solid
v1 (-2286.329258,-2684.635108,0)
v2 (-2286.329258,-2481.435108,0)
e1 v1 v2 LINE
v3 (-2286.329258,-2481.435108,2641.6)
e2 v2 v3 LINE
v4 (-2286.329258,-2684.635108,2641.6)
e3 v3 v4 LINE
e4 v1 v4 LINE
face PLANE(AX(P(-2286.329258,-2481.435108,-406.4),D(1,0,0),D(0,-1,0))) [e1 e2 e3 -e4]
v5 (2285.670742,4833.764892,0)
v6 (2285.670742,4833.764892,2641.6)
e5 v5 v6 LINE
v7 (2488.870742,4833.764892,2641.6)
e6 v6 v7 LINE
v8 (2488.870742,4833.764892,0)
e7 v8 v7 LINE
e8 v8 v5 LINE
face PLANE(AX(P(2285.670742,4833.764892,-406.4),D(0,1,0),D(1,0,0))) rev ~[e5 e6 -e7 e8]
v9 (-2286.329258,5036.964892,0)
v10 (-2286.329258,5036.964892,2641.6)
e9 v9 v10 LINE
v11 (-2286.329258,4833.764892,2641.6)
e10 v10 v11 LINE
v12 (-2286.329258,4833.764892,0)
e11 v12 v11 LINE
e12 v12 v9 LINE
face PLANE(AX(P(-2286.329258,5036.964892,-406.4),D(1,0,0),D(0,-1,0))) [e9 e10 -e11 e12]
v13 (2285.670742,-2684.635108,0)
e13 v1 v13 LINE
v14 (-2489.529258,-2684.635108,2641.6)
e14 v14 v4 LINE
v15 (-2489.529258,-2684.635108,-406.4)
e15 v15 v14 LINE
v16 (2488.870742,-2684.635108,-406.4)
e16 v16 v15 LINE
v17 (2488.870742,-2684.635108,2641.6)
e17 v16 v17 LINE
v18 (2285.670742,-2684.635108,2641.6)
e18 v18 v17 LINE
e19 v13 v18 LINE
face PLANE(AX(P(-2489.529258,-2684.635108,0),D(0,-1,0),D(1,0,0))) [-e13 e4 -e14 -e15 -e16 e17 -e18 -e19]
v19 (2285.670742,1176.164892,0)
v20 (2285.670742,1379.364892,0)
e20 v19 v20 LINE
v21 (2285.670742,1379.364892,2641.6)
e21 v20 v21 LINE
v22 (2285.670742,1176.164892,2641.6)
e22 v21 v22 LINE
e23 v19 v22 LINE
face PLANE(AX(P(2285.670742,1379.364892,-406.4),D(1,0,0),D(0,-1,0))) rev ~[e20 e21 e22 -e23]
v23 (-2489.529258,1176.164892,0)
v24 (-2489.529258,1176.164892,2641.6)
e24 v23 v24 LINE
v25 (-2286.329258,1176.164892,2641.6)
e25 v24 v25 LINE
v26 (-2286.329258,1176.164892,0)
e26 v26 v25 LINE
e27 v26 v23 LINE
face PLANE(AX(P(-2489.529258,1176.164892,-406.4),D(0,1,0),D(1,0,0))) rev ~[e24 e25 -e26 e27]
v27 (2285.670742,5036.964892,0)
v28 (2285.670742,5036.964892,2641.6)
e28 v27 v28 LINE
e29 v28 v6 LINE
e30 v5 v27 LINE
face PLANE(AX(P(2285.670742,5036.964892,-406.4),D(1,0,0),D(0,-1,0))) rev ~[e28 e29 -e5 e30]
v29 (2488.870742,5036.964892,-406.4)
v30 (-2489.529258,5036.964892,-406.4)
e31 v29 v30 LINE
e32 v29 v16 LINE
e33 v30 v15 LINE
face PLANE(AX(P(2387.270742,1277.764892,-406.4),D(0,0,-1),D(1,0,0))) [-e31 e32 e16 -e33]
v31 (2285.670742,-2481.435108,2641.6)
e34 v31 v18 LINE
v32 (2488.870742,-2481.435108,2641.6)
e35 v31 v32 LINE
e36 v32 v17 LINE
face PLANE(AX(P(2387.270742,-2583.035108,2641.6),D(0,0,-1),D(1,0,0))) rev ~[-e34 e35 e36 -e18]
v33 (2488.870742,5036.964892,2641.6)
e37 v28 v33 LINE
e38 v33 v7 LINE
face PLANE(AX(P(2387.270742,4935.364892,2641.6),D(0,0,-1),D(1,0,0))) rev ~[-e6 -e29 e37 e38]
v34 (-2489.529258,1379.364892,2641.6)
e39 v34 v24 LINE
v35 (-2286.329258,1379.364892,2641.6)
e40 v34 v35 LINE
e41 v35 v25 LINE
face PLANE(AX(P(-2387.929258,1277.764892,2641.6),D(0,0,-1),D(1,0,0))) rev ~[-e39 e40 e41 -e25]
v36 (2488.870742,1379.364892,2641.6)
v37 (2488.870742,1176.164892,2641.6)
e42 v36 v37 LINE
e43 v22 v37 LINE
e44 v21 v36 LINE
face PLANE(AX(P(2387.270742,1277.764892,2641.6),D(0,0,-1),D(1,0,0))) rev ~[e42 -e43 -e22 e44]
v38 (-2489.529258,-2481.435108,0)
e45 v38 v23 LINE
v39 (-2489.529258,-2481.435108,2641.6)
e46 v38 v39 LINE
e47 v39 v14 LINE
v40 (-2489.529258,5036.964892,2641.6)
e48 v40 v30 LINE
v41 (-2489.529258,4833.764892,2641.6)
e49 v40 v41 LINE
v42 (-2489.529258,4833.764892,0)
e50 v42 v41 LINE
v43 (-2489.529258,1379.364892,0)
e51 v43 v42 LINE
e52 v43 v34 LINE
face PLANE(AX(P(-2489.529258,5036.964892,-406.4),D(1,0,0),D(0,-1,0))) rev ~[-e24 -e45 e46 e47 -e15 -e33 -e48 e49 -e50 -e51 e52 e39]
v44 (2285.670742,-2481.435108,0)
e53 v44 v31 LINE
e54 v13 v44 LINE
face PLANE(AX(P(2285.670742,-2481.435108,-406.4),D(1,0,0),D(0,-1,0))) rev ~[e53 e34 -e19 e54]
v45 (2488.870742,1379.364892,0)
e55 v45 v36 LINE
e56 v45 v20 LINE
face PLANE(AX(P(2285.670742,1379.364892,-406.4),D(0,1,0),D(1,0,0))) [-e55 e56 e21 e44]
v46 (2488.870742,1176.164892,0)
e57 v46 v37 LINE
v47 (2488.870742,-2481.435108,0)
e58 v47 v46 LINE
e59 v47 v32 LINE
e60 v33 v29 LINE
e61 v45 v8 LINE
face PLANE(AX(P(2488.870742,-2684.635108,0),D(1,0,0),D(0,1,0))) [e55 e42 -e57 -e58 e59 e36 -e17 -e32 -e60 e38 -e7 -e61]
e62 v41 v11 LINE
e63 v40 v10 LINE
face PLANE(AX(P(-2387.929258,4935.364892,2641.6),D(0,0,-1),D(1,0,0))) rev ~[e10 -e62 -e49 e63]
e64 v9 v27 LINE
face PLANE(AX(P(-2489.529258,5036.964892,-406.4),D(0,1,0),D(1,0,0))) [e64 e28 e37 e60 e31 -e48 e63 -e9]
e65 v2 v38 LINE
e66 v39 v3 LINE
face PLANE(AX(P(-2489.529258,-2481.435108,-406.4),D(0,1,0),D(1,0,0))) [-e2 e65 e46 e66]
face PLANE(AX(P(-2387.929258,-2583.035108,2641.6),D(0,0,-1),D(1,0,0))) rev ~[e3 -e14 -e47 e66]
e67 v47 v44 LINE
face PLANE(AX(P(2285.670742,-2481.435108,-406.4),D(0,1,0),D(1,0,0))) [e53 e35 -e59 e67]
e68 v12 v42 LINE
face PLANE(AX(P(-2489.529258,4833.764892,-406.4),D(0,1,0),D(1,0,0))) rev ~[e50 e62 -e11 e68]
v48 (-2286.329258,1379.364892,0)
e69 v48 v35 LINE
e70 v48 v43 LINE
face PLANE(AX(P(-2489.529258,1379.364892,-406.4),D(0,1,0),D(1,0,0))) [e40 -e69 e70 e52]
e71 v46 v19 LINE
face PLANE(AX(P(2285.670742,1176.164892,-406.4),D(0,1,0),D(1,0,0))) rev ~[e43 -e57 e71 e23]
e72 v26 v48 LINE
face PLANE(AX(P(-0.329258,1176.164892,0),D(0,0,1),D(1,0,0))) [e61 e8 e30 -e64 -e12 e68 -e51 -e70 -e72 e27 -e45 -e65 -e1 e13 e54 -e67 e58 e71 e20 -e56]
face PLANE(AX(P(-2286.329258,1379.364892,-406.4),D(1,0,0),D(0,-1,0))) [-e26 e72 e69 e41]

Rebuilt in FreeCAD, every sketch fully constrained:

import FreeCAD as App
import Part
import Sketcher
Q = App.Units.Quantity

doc = App.newDocument("Part")
body = doc.addObject("PartDesign::Body", "Body")

# Sketch on XY plane
sketch1 = body.newObject("Sketcher::SketchObject", "Sketch")
sketch1.AttachmentSupport = (doc.getObject("XY_Plane"), [""])
sketch1.MapMode = "FlatFace"
sketch1.addGeometry([
    Part.LineSegment(App.Vector(-2489.529258, 5036.964892, 0), App.Vector(-2489.529258, -2684.635108, 0)),
    Part.LineSegment(App.Vector(-2489.529258, -2684.635108, 0), App.Vector(2488.870742, -2684.635108, 0)),
    Part.LineSegment(App.Vector(2488.870742, -2684.635108, 0), App.Vector(2488.870742, 5036.964892, 0)),
    Part.LineSegment(App.Vector(2488.870742, 5036.964892, 0), App.Vector(-2489.529258, 5036.964892, 0)),
], False)
sketch1.addConstraint([
    Sketcher.Constraint("Coincident", 0, 2, 1, 1),
    Sketcher.Constraint("Coincident", 1, 2, 2, 1),
    Sketcher.Constraint("Coincident", 2, 2, 3, 1),
    Sketcher.Constraint("Coincident", 3, 2, 0, 1),
    Sketcher.Constraint("Vertical", 0),
    Sketcher.Constraint("Horizontal", 1),
    Sketcher.Constraint("Vertical", 2),
    Sketcher.Constraint("Horizontal", 3),
    Sketcher.Constraint("DistanceX", 1, 1, 1, 2, Q("196 in")),
    Sketcher.Constraint("DistanceY", 0, 2, 0, 1, Q("304 in")),
    Sketcher.Constraint("DistanceY", 0, 2, -1, 1, 2684.635108),
    Sketcher.Constraint("DistanceX", 0, 2, -1, 1, 2489.529258),
])
pad1 = body.newObject("PartDesign::Pad", "Pad")
pad1.Profile = sketch1
pad1.Length = Q("16 in")
pad1.Reversed = True

# Sketch on XY plane
sketch2 = body.newObject("Sketcher::SketchObject", "Sketch001")
sketch2.AttachmentSupport = (doc.getObject("XY_Plane"), [""])
sketch2.MapMode = "FlatFace"
sketch2.AttachmentOffset = App.Placement(App.Vector(0, 0, -16 * 25.4), App.Rotation())
sketch2.addGeometry([
    Part.LineSegment(App.Vector(-2489.529258, -2684.635108, 0), App.Vector(-2489.529258, -2481.435108, 0)),
    Part.LineSegment(App.Vector(-2489.529258, -2481.435108, 0), App.Vector(-2286.329258, -2481.435108, 0)),
    Part.LineSegment(App.Vector(-2286.329258, -2481.435108, 0), App.Vector(-2286.329258, -2684.635108, 0)),
    Part.LineSegment(App.Vector(-2286.329258, -2684.635108, 0), App.Vector(-2489.529258, -2684.635108, 0)),
], False)
sketch2.addConstraint([
    Sketcher.Constraint("Coincident", 0, 2, 1, 1),
    Sketcher.Constraint("Coincident", 1, 2, 2, 1),
    Sketcher.Constraint("Coincident", 2, 2, 3, 1),
    Sketcher.Constraint("Coincident", 3, 2, 0, 1),
    Sketcher.Constraint("Vertical", 0),
    Sketcher.Constraint("Horizontal", 1),
    Sketcher.Constraint("Vertical", 2),
    Sketcher.Constraint("Horizontal", 3),
    Sketcher.Constraint("Equal", 3, 0),
    Sketcher.Constraint("DistanceX", 1, 1, 1, 2, Q("8 in")),
    Sketcher.Constraint("DistanceY", 0, 2, -1, 1, 2481.435108),
    Sketcher.Constraint("DistanceX", 0, 2, -1, 1, 2489.529258),
])
pad2 = body.newObject("PartDesign::Pad", "Pad001")
pad2.Profile = sketch2
pad2.Length = Q("120 in")

# Sketch on XY plane
sketch3 = body.newObject("Sketcher::SketchObject", "Sketch002")
sketch3.AttachmentSupport = (doc.getObject("XY_Plane"), [""])
sketch3.MapMode = "FlatFace"
sketch3.AttachmentOffset = App.Placement(App.Vector(0, 0, -16 * 25.4), App.Rotation())
sketch3.addGeometry([
    Part.LineSegment(App.Vector(2285.670742, -2684.635108, 0), App.Vector(2285.670742, -2481.435108, 0)),
    Part.LineSegment(App.Vector(2285.670742, -2481.435108, 0), App.Vector(2488.870742, -2481.435108, 0)),
    Part.LineSegment(App.Vector(2488.870742, -2481.435108, 0), App.Vector(2488.870742, -2684.635108, 0)),
    Part.LineSegment(App.Vector(2488.870742, -2684.635108, 0), App.Vector(2285.670742, -2684.635108, 0)),
], False)
sketch3.addConstraint([
    Sketcher.Constraint("Coincident", 0, 2, 1, 1),
    Sketcher.Constraint("Coincident", 1, 2, 2, 1),
    Sketcher.Constraint("Coincident", 2, 2, 3, 1),
    Sketcher.Constraint("Coincident", 3, 2, 0, 1),
    Sketcher.Constraint("Vertical", 0),
    Sketcher.Constraint("Horizontal", 1),
    Sketcher.Constraint("Vertical", 2),
    Sketcher.Constraint("Horizontal", 3),
    Sketcher.Constraint("Equal", 3, 0),
    Sketcher.Constraint("DistanceX", 1, 1, 1, 2, Q("8 in")),
    Sketcher.Constraint("DistanceY", 0, 2, -1, 1, 2481.435108),
    Sketcher.Constraint("DistanceX", -1, 1, 0, 2, 2285.670742),
])
pad3 = body.newObject("PartDesign::Pad", "Pad002")
pad3.Profile = sketch3
pad3.Length = Q("120 in")

# Sketch on XY plane
sketch4 = body.newObject("Sketcher::SketchObject", "Sketch003")
sketch4.AttachmentSupport = (doc.getObject("XY_Plane"), [""])
sketch4.MapMode = "FlatFace"
sketch4.AttachmentOffset = App.Placement(App.Vector(0, 0, -16 * 25.4), App.Rotation())
sketch4.addGeometry([
    Part.LineSegment(App.Vector(2285.670742, 4833.764892, 0), App.Vector(2285.670742, 5036.964892, 0)),
    Part.LineSegment(App.Vector(2285.670742, 5036.964892, 0), App.Vector(2488.870742, 5036.964892, 0)),
    Part.LineSegment(App.Vector(2488.870742, 5036.964892, 0), App.Vector(2488.870742, 4833.764892, 0)),
    Part.LineSegment(App.Vector(2488.870742, 4833.764892, 0), App.Vector(2285.670742, 4833.764892, 0)),
], False)
sketch4.addConstraint([
    Sketcher.Constraint("Coincident", 0, 2, 1, 1),
    Sketcher.Constraint("Coincident", 1, 2, 2, 1),
    Sketcher.Constraint("Coincident", 2, 2, 3, 1),
    Sketcher.Constraint("Coincident", 3, 2, 0, 1),
    Sketcher.Constraint("Vertical", 0),
    Sketcher.Constraint("Horizontal", 1),
    Sketcher.Constraint("Vertical", 2),
    Sketcher.Constraint("Horizontal", 3),
    Sketcher.Constraint("Equal", 3, 0),
    Sketcher.Constraint("DistanceX", 1, 1, 1, 2, Q("8 in")),
    Sketcher.Constraint("DistanceY", -1, 1, 0, 2, 5036.964892),
    Sketcher.Constraint("DistanceX", -1, 1, 0, 2, 2285.670742),
])
pad4 = body.newObject("PartDesign::Pad", "Pad003")
pad4.Profile = sketch4
pad4.Length = Q("120 in")

# Sketch on XY plane
sketch5 = body.newObject("Sketcher::SketchObject", "Sketch004")
sketch5.AttachmentSupport = (doc.getObject("XY_Plane"), [""])
sketch5.MapMode = "FlatFace"
sketch5.AttachmentOffset = App.Placement(App.Vector(0, 0, -16 * 25.4), App.Rotation())
sketch5.addGeometry([
    Part.LineSegment(App.Vector(-2489.529258, 4833.764892, 0), App.Vector(-2489.529258, 5036.964892, 0)),
    Part.LineSegment(App.Vector(-2489.529258, 5036.964892, 0), App.Vector(-2286.329258, 5036.964892, 0)),
    Part.LineSegment(App.Vector(-2286.329258, 5036.964892, 0), App.Vector(-2286.329258, 4833.764892, 0)),
    Part.LineSegment(App.Vector(-2286.329258, 4833.764892, 0), App.Vector(-2489.529258, 4833.764892, 0)),
], False)
sketch5.addConstraint([
    Sketcher.Constraint("Coincident", 0, 2, 1, 1),
    Sketcher.Constraint("Coincident", 1, 2, 2, 1),
    Sketcher.Constraint("Coincident", 2, 2, 3, 1),
    Sketcher.Constraint("Coincident", 3, 2, 0, 1),
    Sketcher.Constraint("Vertical", 0),
    Sketcher.Constraint("Horizontal", 1),
    Sketcher.Constraint("Vertical", 2),
    Sketcher.Constraint("Horizontal", 3),
    Sketcher.Constraint("Equal", 3, 0),
    Sketcher.Constraint("DistanceX", 1, 1, 1, 2, Q("8 in")),
    Sketcher.Constraint("DistanceY", -1, 1, 0, 2, 5036.964892),
    Sketcher.Constraint("DistanceX", 0, 2, -1, 1, 2489.529258),
])
pad5 = body.newObject("PartDesign::Pad", "Pad004")
pad5.Profile = sketch5
pad5.Length = Q("120 in")

# Sketch on XY plane
sketch6 = body.newObject("Sketcher::SketchObject", "Sketch005")
sketch6.AttachmentSupport = (doc.getObject("XY_Plane"), [""])
sketch6.MapMode = "FlatFace"
sketch6.AttachmentOffset = App.Placement(App.Vector(0, 0, -16 * 25.4), App.Rotation())
sketch6.addGeometry([
    Part.LineSegment(App.Vector(-2489.529258, 1176.164892, 0), App.Vector(-2489.529258, 1379.364892, 0)),
    Part.LineSegment(App.Vector(-2489.529258, 1379.364892, 0), App.Vector(-2286.329258, 1379.364892, 0)),
    Part.LineSegment(App.Vector(-2286.329258, 1379.364892, 0), App.Vector(-2286.329258, 1176.164892, 0)),
    Part.LineSegment(App.Vector(-2286.329258, 1176.164892, 0), App.Vector(-2489.529258, 1176.164892, 0)),
], False)
sketch6.addConstraint([
    Sketcher.Constraint("Coincident", 0, 2, 1, 1),
    Sketcher.Constraint("Coincident", 1, 2, 2, 1),
    Sketcher.Constraint("Coincident", 2, 2, 3, 1),
    Sketcher.Constraint("Coincident", 3, 2, 0, 1),
    Sketcher.Constraint("Vertical", 0),
    Sketcher.Constraint("Horizontal", 1),
    Sketcher.Constraint("Vertical", 2),
    Sketcher.Constraint("Horizontal", 3),
    Sketcher.Constraint("Equal", 3, 0),
    Sketcher.Constraint("DistanceX", 1, 1, 1, 2, Q("8 in")),
    Sketcher.Constraint("DistanceY", -1, 1, 0, 2, 1379.364892),
    Sketcher.Constraint("DistanceX", 0, 2, -1, 1, 2489.529258),
])
pad6 = body.newObject("PartDesign::Pad", "Pad005")
pad6.Profile = sketch6
pad6.Length = Q("120 in")

# Sketch on XY plane
sketch7 = body.newObject("Sketcher::SketchObject", "Sketch006")
sketch7.AttachmentSupport = (doc.getObject("XY_Plane"), [""])
sketch7.MapMode = "FlatFace"
sketch7.AttachmentOffset = App.Placement(App.Vector(0, 0, -16 * 25.4), App.Rotation())
sketch7.addGeometry([
    Part.LineSegment(App.Vector(2285.670742, 1176.164892, 0), App.Vector(2285.670742, 1379.364892, 0)),
    Part.LineSegment(App.Vector(2285.670742, 1379.364892, 0), App.Vector(2488.870742, 1379.364892, 0)),
    Part.LineSegment(App.Vector(2488.870742, 1379.364892, 0), App.Vector(2488.870742, 1176.164892, 0)),
    Part.LineSegment(App.Vector(2488.870742, 1176.164892, 0), App.Vector(2285.670742, 1176.164892, 0)),
], False)
sketch7.addConstraint([
    Sketcher.Constraint("Coincident", 0, 2, 1, 1),
    Sketcher.Constraint("Coincident", 1, 2, 2, 1),
    Sketcher.Constraint("Coincident", 2, 2, 3, 1),
    Sketcher.Constraint("Coincident", 3, 2, 0, 1),
    Sketcher.Constraint("Vertical", 0),
    Sketcher.Constraint("Horizontal", 1),
    Sketcher.Constraint("Vertical", 2),
    Sketcher.Constraint("Horizontal", 3),
    Sketcher.Constraint("Equal", 3, 0),
    Sketcher.Constraint("DistanceX", 1, 1, 1, 2, Q("8 in")),
    Sketcher.Constraint("DistanceY", -1, 1, 0, 2, 1379.364892),
    Sketcher.Constraint("DistanceX", -1, 1, 0, 2, 2285.670742),
])
pad7 = body.newObject("PartDesign::Pad", "Pad006")
pad7.Profile = sketch7
pad7.Length = Q("120 in")

# Sketch on XY plane
sketch8 = body.newObject("Sketcher::SketchObject", "Sketch007")
sketch8.AttachmentSupport = (doc.getObject("XY_Plane"), [""])
sketch8.MapMode = "FlatFace"
sketch8.addGeometry([
    Part.LineSegment(App.Vector(2285.670742, 4833.764892, 0), App.Vector(2285.670742, 1379.364892, 0)),
    Part.LineSegment(App.Vector(2285.670742, 1379.364892, 0), App.Vector(2488.870742, 1379.364892, 0)),
    Part.LineSegment(App.Vector(2488.870742, 1379.364892, 0), App.Vector(2488.870742, 4833.764892, 0)),
    Part.LineSegment(App.Vector(2488.870742, 4833.764892, 0), App.Vector(2285.670742, 4833.764892, 0)),
], False)
sketch8.addConstraint([
    Sketcher.Constraint("Coincident", 0, 2, 1, 1),
    Sketcher.Constraint("Coincident", 1, 2, 2, 1),
    Sketcher.Constraint("Coincident", 2, 2, 3, 1),
    Sketcher.Constraint("Coincident", 3, 2, 0, 1),
    Sketcher.Constraint("Vertical", 0),
    Sketcher.Constraint("Horizontal", 1),
    Sketcher.Constraint("Vertical", 2),
    Sketcher.Constraint("Horizontal", 3),
    Sketcher.Constraint("DistanceX", 1, 1, 1, 2, Q("8 in")),
    Sketcher.Constraint("DistanceY", 0, 2, 0, 1, Q("136 in")),
    Sketcher.Constraint("DistanceY", -1, 1, 0, 2, 1379.364892),
    Sketcher.Constraint("DistanceX", -1, 1, 0, 2, 2285.670742),
])
pad8 = body.newObject("PartDesign::Pad", "Pad007")
pad8.Profile = sketch8
pad8.Length = Q("8 in")
pad8.Reversed = True

doc.recompute()
